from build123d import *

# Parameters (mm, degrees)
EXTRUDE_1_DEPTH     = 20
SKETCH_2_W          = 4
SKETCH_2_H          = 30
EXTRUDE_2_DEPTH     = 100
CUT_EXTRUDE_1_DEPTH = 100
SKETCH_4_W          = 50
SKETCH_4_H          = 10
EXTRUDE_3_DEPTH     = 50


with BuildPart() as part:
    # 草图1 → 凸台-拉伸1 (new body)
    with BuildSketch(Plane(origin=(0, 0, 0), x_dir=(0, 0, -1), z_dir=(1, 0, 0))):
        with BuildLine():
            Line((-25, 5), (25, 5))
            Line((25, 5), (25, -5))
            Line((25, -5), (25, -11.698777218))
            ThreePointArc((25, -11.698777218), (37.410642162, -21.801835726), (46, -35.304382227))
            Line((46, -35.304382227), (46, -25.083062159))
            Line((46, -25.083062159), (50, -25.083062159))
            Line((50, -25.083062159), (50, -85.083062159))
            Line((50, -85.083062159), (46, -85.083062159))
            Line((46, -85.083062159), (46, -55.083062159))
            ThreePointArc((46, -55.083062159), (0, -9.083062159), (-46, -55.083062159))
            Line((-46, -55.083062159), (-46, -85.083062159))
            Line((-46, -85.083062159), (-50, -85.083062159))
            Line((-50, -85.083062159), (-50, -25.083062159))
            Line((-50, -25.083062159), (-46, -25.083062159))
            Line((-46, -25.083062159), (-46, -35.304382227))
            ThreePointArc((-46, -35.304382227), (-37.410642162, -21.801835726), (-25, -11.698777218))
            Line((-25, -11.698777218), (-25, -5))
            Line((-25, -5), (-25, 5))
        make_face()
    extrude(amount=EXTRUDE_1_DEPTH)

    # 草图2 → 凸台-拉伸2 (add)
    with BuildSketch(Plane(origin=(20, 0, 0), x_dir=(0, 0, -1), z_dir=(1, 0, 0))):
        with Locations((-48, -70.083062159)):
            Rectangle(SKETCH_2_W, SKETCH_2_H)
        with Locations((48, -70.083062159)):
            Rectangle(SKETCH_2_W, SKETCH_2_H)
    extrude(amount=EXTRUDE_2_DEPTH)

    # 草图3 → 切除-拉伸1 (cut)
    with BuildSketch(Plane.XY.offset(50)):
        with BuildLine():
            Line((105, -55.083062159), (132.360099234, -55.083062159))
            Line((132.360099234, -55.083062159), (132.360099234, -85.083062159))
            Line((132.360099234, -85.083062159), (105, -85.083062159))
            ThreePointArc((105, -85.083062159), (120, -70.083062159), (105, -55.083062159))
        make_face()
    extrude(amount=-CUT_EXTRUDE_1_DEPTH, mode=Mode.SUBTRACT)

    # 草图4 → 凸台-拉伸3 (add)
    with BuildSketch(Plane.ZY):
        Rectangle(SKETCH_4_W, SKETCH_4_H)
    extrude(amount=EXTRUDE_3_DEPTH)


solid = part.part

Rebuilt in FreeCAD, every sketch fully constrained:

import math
import FreeCAD as App
import Part
import Sketcher

V = App.Vector
Q = App.Units.Quantity


def add_polygon(sketch, points):
    """Adds a closed chain of lines whose ends are joined by coincident constraints."""
    first, n = sketch.GeometryCount, len(points)
    for a, b in zip(points, points[1:] + points[:1]):
        sketch.addGeometry(Part.LineSegment(App.Vector(*a, 0), App.Vector(*b, 0)), False)
    for i in range(n):
        sketch.addConstraint(Sketcher.Constraint("Coincident", first + i, 2, first + (i + 1) % n, 1))

doc = App.newDocument("Part")
body = doc.addObject("PartDesign::Body", "Body")

# Sketch on YZ plane
sketch1 = body.newObject("Sketcher::SketchObject", "Sketch")
sketch1.AttachmentSupport = (doc.getObject("YZ_Plane"), [""])
sketch1.MapMode = "FlatFace"
sketch1.addGeometry(Part.LineSegment(V(5, -25, 0), V(5, 25, 0)), False)
sketch1.addGeometry(Part.LineSegment(V(5, 25, 0), V(-11.7, 25, 0)), False)
sketch1.addGeometry(Part.ArcOfCircle(Part.Circle(V(-55.1, 0, 0), V(0, 0, 1), 50.1), math.radians(30), math.radians(67)), False)
sketch1.addGeometry(Part.LineSegment(V(-35.3, 46, 0), V(-25.1, 46, 0)), False)
sketch1.addGeometry(Part.LineSegment(V(-25.1, 46, 0), V(-25.1, 50, 0)), False)
sketch1.addGeometry(Part.LineSegment(V(-25.1, 50, 0), V(-85.1, 50, 0)), False)
sketch1.addGeometry(Part.LineSegment(V(-85.1, 50, 0), V(-85.1, 46, 0)), False)
sketch1.addGeometry(Part.LineSegment(V(-85.1, 46, 0), V(-55.1, 46, 0)), False)
sketch1.addGeometry(Part.ArcOfCircle(Part.Circle(V(-55.1, 0, 0), V(0, 0, 1), 46), math.radians(-90), math.radians(90)), False)
sketch1.addGeometry(Part.LineSegment(V(-55.1, -46, 0), V(-85.1, -46, 0)), False)
sketch1.addGeometry(Part.LineSegment(V(-85.1, -46, 0), V(-85.1, -50, 0)), False)
sketch1.addGeometry(Part.LineSegment(V(-85.1, -50, 0), V(-25.1, -50, 0)), False)
sketch1.addGeometry(Part.LineSegment(V(-25.1, -50, 0), V(-25.1, -46, 0)), False)
sketch1.addGeometry(Part.LineSegment(V(-25.1, -46, 0), V(-35.3, -46, 0)), False)
sketch1.addGeometry(Part.ArcOfCircle(Part.Circle(V(-55.1, 0, 0), V(0, 0, 1), 50.1), math.radians(-67), math.radians(-30)), False)
sketch1.addGeometry(Part.LineSegment(V(-11.7, -25, 0), V(5, -25, 0)), False)
sketch1.addConstraint(Sketcher.Constraint("Coincident", 0, 2, 1, 1))
sketch1.addConstraint(Sketcher.Constraint("Coincident", 1, 2, 2, 1))
sketch1.addConstraint(Sketcher.Constraint("Coincident", 2, 2, 3, 1))
sketch1.addConstraint(Sketcher.Constraint("Coincident", 3, 2, 4, 1))
sketch1.addConstraint(Sketcher.Constraint("Coincident", 4, 2, 5, 1))
sketch1.addConstraint(Sketcher.Constraint("Coincident", 5, 2, 6, 1))
sketch1.addConstraint(Sketcher.Constraint("Coincident", 6, 2, 7, 1))
sketch1.addConstraint(Sketcher.Constraint("Tangent", 7, 2, 8, 2))
sketch1.addConstraint(Sketcher.Constraint("Tangent", 8, 1, 9, 1))
sketch1.addConstraint(Sketcher.Constraint("Coincident", 9, 2, 10, 1))
sketch1.addConstraint(Sketcher.Constraint("Coincident", 10, 2, 11, 1))
sketch1.addConstraint(Sketcher.Constraint("Coincident", 11, 2, 12, 1))
sketch1.addConstraint(Sketcher.Constraint("Coincident", 12, 2, 13, 1))
sketch1.addConstraint(Sketcher.Constraint("Coincident", 13, 2, 14, 1))
sketch1.addConstraint(Sketcher.Constraint("Coincident", 14, 2, 15, 1))
sketch1.addConstraint(Sketcher.Constraint("Coincident", 15, 2, 0, 1))
sketch1.addConstraint(Sketcher.Constraint("Vertical", 0))
sketch1.addConstraint(Sketcher.Constraint("Horizontal", 1))
sketch1.addConstraint(Sketcher.Constraint("Horizontal", 3))
sketch1.addConstraint(Sketcher.Constraint("Vertical", 4))
sketch1.addConstraint(Sketcher.Constraint("Horizontal", 5))
sketch1.addConstraint(Sketcher.Constraint("Vertical", 6))
sketch1.addConstraint(Sketcher.Constraint("Horizontal", 7))
sketch1.addConstraint(Sketcher.Constraint("Horizontal", 9))
sketch1.addConstraint(Sketcher.Constraint("Vertical", 10))
sketch1.addConstraint(Sketcher.Constraint("Horizontal", 11))
sketch1.addConstraint(Sketcher.Constraint("Vertical", 12))
sketch1.addConstraint(Sketcher.Constraint("Horizontal", 13))
sketch1.addConstraint(Sketcher.Constraint("Horizontal", 15))
sketch1.addConstraint(Sketcher.Constraint("Coincident", 8, 3, 2, 3))
sketch1.addConstraint(Sketcher.Constraint("Coincident", 14, 3, 2, 3))
sketch1.addConstraint(Sketcher.Constraint("Equal", 2, 14))
sketch1.addConstraint(Sketcher.Constraint("Symmetric", 6, 2, 9, 2, -1))
sketch1.addConstraint(Sketcher.Constraint("Symmetric", 4, 2, 11, 2, -1))
sketch1.addConstraint(Sketcher.Constraint("Horizontal", 3, 2, 6, 2))
sketch1.addConstraint(Sketcher.Constraint("Horizontal", 9, 2, 12, 2))
sketch1.addConstraint(Sketcher.Constraint("Vertical", 1, 2, 14, 2))
sketch1.addConstraint(Sketcher.Constraint("Radius", 8, Q("46 mm")))
sketch1.addConstraint(Sketcher.Constraint("DistanceX", 5, 2, 5, 1, Q("60 mm")))
sketch1.addConstraint(Sketcher.Constraint("DistanceX", 7, 1, 7, 2, Q("30 mm")))
sketch1.addConstraint(Sketcher.Constraint("DistanceY", 0, 1, 0, 2, Q("50 mm")))
sketch1.addConstraint(Sketcher.Constraint("DistanceY", 4, 1, 4, 2, Q("4 mm")))
sketch1.addConstraint(Sketcher.Constraint("DistanceX", -1, 1, 0, 2, Q("5 mm")))
sketch1.addConstraint(Sketcher.Constraint("Radius", 2, Q("50.07191 mm")))
sketch1.addConstraint(Sketcher.Constraint("DistanceX", 1, 2, 1, 1, Q("16.698777 mm")))
pad1 = body.newObject("PartDesign::Pad", "Pad")
pad1.Profile = sketch1
pad1.Length = 20

# Sketch on YZ plane
sketch2 = body.newObject("Sketcher::SketchObject", "Sketch001")
sketch2.AttachmentSupport = (doc.getObject("YZ_Plane"), [""])
sketch2.MapMode = "FlatFace"
sketch2.AttachmentOffset = App.Placement(V(0, 0, 20), App.Rotation())
add_polygon(sketch2, [(-55.1, 50), (-85.1, 50), (-85.1, 46), (-55.1, 46)])  # lines 0-3
add_polygon(sketch2, [(-55.1, -46), (-85.1, -46), (-85.1, -50), (-55.1, -50)])  # lines 4-7
sketch2.addConstraint(Sketcher.Constraint("Horizontal", 0))
sketch2.addConstraint(Sketcher.Constraint("Vertical", 1))
sketch2.addConstraint(Sketcher.Constraint("Horizontal", 2))
sketch2.addConstraint(Sketcher.Constraint("Vertical", 3))
sketch2.addConstraint(Sketcher.Constraint("Horizontal", 4))
sketch2.addConstraint(Sketcher.Constraint("Vertical", 5))
sketch2.addConstraint(Sketcher.Constraint("Horizontal", 6))
sketch2.addConstraint(Sketcher.Constraint("Vertical", 7))
sketch2.addConstraint(Sketcher.Constraint("Symmetric", 1, 2, 4, 2, -1))
sketch2.addConstraint(Sketcher.Constraint("Symmetric", 3, 2, 6, 2, -1))
sketch2.addConstraint(Sketcher.Constraint("DistanceX", 0, 2, 0, 1, Q("30 mm")))
sketch2.addConstraint(Sketcher.Constraint("DistanceY", 1, 2, 1, 1, Q("4 mm")))
sketch2.addConstraint(Sketcher.Constraint("DistanceY", -1, 1, 0, 2, Q("50 mm")))
sketch2.addConstraint(Sketcher.Constraint("DistanceX", 0, 2, -1, 1, Q("85.083062 mm")))
pad2 = body.newObject("PartDesign::Pad", "Pad001")
pad2.Profile = sketch2
pad2.Length = 100

# Sketch on XY plane
sketch3 = body.newObject("Sketcher::SketchObject", "Sketch002")
sketch3.AttachmentSupport = (doc.getObject("XY_Plane"), [""])
sketch3.MapMode = "FlatFace"
sketch3.AttachmentOffset = App.Placement(V(0, 0, 50), App.Rotation())
sketch3.addGeometry(Part.LineSegment(V(132, -55, 0), V(105, -55, 0)), False)
sketch3.addGeometry(Part.ArcOfCircle(Part.Circle(V(105, -70, 0), V(0, 0, 1), 15), math.radians(-90), math.radians(90)), False)
sketch3.addGeometry(Part.LineSegment(V(105, -85, 0), V(132, -85, 0)), False)
sketch3.addGeometry(Part.LineSegment(V(132, -85, 0), V(132, -55, 0)), False)
sketch3.addConstraint(Sketcher.Constraint("Tangent", 0, 2, 1, 2))
sketch3.addConstraint(Sketcher.Constraint("Tangent", 1, 1, 2, 1))
sketch3.addConstraint(Sketcher.Constraint("Coincident", 2, 2, 3, 1))
sketch3.addConstraint(Sketcher.Constraint("Coincident", 3, 2, 0, 1))
sketch3.addConstraint(Sketcher.Constraint("Horizontal", 0))
sketch3.addConstraint(Sketcher.Constraint("Horizontal", 2))
sketch3.addConstraint(Sketcher.Constraint("Vertical", 3))
sketch3.addConstraint(Sketcher.Constraint("Radius", 1, Q("15 mm")))
sketch3.addConstraint(Sketcher.Constraint("DistanceX", -1, 1, 1, 3, Q("105 mm")))
sketch3.addConstraint(Sketcher.Constraint("DistanceX", 0, 2, 0, 1, Q("27.360099 mm")))
sketch3.addConstraint(Sketcher.Constraint("DistanceY", 1, 3, -1, 1, Q("70.083062 mm")))
pocket1 = body.newObject("PartDesign::Pocket", "Pocket")
pocket1.Profile = sketch3
pocket1.Length = 100

# Sketch on YZ plane
sketch4 = body.newObject("Sketcher::SketchObject", "Sketch003")
sketch4.AttachmentSupport = (doc.getObject("YZ_Plane"), [""])
sketch4.MapMode = "FlatFace"
add_polygon(sketch4, [(5, -25), (-5, -25), (-5, 25), (5, 25)])  # lines 0-3
sketch4.addConstraint(Sketcher.Constraint("Horizontal", 0))
sketch4.addConstraint(Sketcher.Constraint("Vertical", 1))
sketch4.addConstraint(Sketcher.Constraint("Horizontal", 2))
sketch4.addConstraint(Sketcher.Constraint("Vertical", 3))
sketch4.addConstraint(Sketcher.Constraint("Symmetric", 0, 2, 2, 2, -1, 1))
sketch4.addConstraint(Sketcher.Constraint("DistanceX", 0, 2, 0, 1, Q("10 mm")))
sketch4.addConstraint(Sketcher.Constraint("DistanceY", 1, 1, 1, 2, Q("50 mm")))
pad3 = body.newObject("PartDesign::Pad", "Pad002")
pad3.Profile = sketch4
pad3.Length = 50
pad3.Reversed = True

doc.recompute()
